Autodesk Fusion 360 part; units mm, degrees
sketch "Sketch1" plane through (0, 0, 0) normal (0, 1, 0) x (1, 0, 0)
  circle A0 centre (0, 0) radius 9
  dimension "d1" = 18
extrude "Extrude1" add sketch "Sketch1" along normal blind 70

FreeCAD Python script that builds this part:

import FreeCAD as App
import Part
import Sketcher

V = App.Vector
Q = App.Units.Quantity

doc = App.newDocument("Part")
body = doc.addObject("PartDesign::Body", "Body")

# Sketch on XZ plane
sketch1 = body.newObject("Sketcher::SketchObject", "Sketch")
sketch1.AttachmentSupport = (doc.getObject("XZ_Plane"), [""])
sketch1.MapMode = "FlatFace"
sketch1.addGeometry(Part.Circle(V(0, 0, 0), V(0, 0, 1), 9), False)
sketch1.addConstraint([
    Sketcher.Constraint("Coincident", 0, 3, -1, 1),
    Sketcher.Constraint("Diameter", 0, Q("18 mm")),
])
pad1 = body.newObject("PartDesign::Pad", "Pad")
pad1.Profile = sketch1
pad1.Length = 70
pad1.Reversed = True

doc.recompute()
